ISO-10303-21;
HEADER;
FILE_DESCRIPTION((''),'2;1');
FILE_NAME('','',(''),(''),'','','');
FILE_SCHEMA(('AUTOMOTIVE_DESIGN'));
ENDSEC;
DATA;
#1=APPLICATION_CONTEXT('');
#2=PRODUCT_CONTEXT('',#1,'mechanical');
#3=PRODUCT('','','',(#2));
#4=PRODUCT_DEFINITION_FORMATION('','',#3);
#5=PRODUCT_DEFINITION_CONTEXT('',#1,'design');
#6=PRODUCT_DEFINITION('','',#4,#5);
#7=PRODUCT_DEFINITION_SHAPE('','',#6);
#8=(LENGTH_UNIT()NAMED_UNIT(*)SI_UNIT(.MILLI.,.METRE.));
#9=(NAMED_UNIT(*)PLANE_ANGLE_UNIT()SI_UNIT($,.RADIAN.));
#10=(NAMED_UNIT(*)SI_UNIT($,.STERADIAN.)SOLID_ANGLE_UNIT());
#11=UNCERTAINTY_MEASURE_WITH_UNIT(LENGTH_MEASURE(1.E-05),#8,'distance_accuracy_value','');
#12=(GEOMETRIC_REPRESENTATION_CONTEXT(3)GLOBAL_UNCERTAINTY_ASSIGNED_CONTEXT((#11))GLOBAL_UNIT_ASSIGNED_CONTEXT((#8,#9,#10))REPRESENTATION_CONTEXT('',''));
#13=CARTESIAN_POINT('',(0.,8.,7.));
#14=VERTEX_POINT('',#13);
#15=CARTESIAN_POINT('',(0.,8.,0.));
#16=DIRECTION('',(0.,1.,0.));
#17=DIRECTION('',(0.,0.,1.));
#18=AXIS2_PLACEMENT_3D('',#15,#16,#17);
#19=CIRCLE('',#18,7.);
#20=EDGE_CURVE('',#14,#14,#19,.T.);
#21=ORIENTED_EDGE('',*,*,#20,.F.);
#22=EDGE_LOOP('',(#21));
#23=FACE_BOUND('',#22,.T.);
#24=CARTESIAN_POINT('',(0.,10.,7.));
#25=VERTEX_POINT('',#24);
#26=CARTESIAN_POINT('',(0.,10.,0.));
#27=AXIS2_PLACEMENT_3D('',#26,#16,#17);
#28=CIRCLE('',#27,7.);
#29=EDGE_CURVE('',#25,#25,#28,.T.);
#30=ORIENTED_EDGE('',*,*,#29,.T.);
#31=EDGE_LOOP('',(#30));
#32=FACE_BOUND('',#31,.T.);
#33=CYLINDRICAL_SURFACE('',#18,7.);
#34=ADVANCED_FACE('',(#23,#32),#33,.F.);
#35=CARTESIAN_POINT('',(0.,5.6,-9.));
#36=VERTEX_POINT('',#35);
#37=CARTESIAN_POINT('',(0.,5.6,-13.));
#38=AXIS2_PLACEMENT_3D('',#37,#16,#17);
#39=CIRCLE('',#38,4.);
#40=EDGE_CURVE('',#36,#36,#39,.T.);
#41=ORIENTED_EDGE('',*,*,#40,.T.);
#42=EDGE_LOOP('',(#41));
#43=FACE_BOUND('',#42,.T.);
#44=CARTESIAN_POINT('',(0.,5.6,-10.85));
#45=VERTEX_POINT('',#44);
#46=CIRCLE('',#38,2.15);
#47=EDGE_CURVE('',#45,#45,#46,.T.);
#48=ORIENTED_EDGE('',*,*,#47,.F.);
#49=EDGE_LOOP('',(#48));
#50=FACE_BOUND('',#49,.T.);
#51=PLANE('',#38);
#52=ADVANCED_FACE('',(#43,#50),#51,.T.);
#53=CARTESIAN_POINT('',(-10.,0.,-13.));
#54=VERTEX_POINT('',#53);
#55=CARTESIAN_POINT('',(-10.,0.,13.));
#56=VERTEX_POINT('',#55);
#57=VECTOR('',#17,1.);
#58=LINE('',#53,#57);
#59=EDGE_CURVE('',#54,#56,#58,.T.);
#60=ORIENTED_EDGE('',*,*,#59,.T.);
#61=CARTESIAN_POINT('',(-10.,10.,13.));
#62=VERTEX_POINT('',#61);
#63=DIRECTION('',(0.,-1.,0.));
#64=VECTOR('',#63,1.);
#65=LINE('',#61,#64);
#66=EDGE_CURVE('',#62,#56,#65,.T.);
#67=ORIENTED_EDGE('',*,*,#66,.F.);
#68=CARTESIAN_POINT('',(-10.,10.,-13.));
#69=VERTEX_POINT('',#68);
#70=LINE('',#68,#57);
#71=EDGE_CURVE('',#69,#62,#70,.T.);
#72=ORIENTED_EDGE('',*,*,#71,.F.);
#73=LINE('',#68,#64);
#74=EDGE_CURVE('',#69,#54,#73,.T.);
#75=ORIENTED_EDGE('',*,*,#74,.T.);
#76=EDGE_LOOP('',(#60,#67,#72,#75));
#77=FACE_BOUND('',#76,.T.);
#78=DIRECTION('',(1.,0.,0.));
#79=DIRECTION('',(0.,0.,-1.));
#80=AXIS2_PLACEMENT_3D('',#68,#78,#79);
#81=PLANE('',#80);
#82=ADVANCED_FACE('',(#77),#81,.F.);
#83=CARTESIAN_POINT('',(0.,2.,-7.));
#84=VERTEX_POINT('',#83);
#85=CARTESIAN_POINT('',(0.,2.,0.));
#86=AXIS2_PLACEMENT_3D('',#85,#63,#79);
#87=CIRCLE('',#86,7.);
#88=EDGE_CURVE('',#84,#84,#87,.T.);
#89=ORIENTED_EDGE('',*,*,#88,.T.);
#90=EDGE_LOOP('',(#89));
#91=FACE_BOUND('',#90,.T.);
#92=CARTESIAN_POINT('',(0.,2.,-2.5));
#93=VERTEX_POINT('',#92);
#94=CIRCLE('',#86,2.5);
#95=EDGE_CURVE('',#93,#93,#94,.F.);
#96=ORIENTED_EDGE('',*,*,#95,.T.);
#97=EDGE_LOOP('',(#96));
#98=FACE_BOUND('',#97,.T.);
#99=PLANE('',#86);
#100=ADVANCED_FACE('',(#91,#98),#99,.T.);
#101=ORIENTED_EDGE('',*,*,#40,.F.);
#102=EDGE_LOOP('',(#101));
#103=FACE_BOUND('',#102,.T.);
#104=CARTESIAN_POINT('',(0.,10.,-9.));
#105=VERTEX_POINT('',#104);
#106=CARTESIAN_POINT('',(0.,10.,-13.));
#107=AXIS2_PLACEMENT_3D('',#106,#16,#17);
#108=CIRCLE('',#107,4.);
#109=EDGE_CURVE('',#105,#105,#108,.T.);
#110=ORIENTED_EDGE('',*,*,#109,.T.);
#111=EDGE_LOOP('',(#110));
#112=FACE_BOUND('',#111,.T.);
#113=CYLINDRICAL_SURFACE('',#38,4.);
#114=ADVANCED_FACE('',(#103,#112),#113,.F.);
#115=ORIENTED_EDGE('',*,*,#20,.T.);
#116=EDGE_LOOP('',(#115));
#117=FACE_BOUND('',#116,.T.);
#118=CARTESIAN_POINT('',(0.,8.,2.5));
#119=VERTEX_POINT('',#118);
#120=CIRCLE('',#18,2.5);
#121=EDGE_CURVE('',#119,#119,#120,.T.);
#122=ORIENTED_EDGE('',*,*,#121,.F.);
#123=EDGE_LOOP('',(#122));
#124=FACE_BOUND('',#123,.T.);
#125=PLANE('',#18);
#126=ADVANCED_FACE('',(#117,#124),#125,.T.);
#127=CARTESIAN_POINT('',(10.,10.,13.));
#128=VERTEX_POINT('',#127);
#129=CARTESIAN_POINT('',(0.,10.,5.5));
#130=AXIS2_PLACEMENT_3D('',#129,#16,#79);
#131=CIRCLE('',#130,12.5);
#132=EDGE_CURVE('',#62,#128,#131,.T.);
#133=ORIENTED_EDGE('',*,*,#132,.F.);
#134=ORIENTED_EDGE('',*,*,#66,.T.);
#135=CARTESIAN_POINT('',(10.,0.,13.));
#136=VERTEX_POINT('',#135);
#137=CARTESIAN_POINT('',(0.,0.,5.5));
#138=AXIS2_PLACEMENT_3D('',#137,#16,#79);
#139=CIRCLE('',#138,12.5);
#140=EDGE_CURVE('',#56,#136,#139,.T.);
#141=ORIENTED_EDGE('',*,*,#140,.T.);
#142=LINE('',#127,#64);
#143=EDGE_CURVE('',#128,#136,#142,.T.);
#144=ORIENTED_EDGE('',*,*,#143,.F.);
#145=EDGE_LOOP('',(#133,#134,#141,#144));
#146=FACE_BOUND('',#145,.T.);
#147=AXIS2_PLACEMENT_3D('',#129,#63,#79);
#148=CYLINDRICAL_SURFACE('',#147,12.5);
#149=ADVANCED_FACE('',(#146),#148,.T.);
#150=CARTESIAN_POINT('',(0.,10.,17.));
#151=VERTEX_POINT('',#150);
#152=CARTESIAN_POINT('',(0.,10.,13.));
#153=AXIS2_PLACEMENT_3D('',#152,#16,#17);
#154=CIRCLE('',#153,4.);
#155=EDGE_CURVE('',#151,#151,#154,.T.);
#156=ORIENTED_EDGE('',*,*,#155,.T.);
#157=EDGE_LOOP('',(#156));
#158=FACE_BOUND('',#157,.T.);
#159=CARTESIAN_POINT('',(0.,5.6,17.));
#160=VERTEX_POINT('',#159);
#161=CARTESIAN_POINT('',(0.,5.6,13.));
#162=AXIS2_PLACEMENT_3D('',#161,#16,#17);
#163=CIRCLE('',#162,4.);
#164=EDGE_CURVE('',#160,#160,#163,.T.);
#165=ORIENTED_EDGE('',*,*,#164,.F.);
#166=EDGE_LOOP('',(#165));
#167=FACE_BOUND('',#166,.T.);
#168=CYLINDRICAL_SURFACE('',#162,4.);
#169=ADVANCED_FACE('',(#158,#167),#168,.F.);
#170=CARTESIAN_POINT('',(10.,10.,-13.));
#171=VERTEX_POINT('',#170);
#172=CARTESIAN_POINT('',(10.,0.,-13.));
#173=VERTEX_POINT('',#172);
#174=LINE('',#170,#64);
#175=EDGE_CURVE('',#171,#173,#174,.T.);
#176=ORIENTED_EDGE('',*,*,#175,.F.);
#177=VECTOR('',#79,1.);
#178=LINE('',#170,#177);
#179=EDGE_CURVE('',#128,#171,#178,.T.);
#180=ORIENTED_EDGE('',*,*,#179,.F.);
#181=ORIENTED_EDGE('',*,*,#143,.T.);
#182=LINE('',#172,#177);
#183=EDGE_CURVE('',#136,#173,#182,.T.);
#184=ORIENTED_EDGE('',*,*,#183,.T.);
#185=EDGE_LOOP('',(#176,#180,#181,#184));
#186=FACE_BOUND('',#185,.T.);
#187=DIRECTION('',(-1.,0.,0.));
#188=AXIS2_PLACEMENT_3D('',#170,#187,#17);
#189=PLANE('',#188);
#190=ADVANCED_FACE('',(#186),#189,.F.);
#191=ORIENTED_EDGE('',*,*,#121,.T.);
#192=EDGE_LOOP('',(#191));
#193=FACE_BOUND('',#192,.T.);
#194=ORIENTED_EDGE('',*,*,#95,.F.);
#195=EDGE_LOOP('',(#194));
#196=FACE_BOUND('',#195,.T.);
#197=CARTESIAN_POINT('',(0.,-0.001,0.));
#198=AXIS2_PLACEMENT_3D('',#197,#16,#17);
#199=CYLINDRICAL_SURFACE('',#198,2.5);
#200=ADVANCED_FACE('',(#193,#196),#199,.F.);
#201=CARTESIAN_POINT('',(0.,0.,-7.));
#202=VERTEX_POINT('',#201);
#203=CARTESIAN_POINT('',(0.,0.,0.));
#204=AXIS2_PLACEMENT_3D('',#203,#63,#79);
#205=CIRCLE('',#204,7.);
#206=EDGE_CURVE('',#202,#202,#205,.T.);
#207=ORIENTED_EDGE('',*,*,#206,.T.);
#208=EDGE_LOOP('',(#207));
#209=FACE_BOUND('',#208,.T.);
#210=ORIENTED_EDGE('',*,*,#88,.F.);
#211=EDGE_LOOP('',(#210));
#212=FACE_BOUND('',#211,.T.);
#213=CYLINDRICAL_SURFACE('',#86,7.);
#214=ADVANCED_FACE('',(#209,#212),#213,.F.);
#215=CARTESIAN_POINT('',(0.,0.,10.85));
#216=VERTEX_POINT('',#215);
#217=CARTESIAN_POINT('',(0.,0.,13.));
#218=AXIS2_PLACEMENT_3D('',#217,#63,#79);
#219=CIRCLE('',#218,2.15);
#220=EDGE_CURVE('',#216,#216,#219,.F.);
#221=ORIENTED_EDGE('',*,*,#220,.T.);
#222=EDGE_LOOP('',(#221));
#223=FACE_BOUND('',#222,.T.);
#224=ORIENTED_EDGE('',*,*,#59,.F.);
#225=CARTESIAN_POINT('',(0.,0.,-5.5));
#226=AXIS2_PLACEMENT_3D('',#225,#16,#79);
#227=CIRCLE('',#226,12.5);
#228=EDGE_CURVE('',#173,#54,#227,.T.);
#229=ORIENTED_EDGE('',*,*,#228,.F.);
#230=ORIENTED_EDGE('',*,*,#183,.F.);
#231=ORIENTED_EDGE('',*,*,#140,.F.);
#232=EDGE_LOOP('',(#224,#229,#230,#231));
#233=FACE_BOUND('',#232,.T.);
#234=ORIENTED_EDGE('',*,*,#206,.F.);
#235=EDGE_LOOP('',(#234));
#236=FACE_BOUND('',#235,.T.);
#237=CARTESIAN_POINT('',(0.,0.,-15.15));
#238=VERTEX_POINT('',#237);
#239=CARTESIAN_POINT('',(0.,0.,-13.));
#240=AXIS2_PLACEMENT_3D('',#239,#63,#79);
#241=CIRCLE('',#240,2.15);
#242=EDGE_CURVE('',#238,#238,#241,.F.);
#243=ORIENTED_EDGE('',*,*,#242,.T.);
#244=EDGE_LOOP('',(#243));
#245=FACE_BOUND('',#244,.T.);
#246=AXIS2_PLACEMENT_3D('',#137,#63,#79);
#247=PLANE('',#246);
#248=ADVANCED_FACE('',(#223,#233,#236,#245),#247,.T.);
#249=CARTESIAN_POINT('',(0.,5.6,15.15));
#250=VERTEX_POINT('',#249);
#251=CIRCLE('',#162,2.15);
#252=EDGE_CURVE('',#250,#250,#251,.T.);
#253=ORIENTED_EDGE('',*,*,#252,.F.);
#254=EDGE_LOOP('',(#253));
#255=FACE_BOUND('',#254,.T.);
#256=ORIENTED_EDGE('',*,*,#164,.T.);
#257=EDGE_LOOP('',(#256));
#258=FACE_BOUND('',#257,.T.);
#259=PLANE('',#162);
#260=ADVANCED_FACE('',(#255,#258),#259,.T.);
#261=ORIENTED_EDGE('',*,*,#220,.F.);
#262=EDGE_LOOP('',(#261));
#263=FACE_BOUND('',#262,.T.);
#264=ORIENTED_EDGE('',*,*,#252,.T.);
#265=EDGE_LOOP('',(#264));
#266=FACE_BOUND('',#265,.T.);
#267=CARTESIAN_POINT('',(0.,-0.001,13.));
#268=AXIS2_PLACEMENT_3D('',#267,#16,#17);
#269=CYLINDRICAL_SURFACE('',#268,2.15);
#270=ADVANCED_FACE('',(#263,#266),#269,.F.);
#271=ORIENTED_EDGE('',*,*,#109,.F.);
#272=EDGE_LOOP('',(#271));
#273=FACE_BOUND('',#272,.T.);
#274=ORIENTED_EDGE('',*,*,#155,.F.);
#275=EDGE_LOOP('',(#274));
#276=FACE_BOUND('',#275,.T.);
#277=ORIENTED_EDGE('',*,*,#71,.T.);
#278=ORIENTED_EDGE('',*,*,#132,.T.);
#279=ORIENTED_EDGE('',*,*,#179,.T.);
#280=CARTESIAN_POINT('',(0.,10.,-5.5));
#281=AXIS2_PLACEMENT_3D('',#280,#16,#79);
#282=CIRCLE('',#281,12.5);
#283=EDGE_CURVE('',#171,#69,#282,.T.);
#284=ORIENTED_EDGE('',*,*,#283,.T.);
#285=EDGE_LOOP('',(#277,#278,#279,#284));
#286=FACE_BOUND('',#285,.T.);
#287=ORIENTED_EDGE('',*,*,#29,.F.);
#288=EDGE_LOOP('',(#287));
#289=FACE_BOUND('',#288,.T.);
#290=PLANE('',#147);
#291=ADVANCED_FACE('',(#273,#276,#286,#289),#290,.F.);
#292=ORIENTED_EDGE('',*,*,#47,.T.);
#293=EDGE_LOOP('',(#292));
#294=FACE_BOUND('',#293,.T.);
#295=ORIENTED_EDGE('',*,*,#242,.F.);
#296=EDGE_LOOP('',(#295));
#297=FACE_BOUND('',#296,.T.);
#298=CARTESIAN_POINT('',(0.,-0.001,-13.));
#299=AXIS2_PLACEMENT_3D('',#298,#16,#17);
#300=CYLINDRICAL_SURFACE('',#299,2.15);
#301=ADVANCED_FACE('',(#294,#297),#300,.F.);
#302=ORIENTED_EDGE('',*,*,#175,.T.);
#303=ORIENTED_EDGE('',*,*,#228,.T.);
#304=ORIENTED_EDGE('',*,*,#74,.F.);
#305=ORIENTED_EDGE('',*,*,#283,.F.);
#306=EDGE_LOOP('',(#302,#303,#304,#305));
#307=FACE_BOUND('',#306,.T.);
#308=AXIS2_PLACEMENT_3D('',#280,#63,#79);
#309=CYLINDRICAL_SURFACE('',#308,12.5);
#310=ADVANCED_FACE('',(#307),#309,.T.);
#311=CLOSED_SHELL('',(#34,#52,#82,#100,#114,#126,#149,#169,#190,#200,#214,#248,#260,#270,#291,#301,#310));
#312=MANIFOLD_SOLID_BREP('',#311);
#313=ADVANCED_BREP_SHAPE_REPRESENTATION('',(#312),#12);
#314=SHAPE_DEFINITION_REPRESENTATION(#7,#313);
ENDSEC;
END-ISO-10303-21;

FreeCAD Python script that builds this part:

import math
import FreeCAD as App
import Part
import Sketcher

V = App.Vector
Q = App.Units.Quantity

doc = App.newDocument("Part")
body = doc.addObject("PartDesign::Body", "Body")

sketch1 = body.newObject("Sketcher::SketchObject", "Sketch")
sketch1.AttachmentSupport = (doc.getObject("XZ_Plane"), [""])
sketch1.MapMode = "FlatFace"
sketch1.addGeometry([
    Part.LineSegment(V(-10, -13, 0), V(-10, 13, 0)),
    Part.ArcOfCircle(Part.Circle(V(0, 6, 0), V(0, 0, 1), 12), math.radians(37), math.radians(143)),
    Part.LineSegment(V(10, 13, 0), V(10, -13, 0)),
    Part.ArcOfCircle(Part.Circle(V(0, -6, 0), V(0, 0, 1), 12), math.radians(-143), math.radians(-37)),
], False)
sketch1.addConstraint([
    Sketcher.Constraint("Coincident", 0, 2, 1, 2),
    Sketcher.Constraint("Coincident", 1, 1, 2, 1),
    Sketcher.Constraint("Coincident", 2, 2, 3, 2),
    Sketcher.Constraint("Coincident", 3, 1, 0, 1),
    Sketcher.Constraint("Vertical", 0),
    Sketcher.Constraint("Vertical", 2),
    Sketcher.Constraint("Equal", 1, 3),
    Sketcher.Constraint("Symmetric", 1, 3, 3, 3, -1, 1),
    Sketcher.Constraint("Symmetric", 0, 2, 1, 1, -2),
    Sketcher.Constraint("Radius", 1, Q("12.5 mm")),
    Sketcher.Constraint("DistanceY", 0, 1, 0, 2, Q("26 mm")),
    Sketcher.Constraint("DistanceX", 0, 2, -1, 1, Q("10 mm")),
])
pad1 = body.newObject("PartDesign::Pad", "Pad")
pad1.Profile = sketch1
pad1.Length = 10
pad1.Reversed = True

sketch2 = body.newObject("Sketcher::SketchObject", "Sketch001")
sketch2.AttachmentSupport = (doc.getObject("XZ_Plane"), [""])
sketch2.MapMode = "FlatFace"
sketch2.AttachmentOffset = App.Placement(V(0, 0, -10), App.Rotation())
sketch2.addGeometry([
    Part.Circle(V(0, -13, 0), V(0, 0, 1), 4),
    Part.Circle(V(0, 13, 0), V(0, 0, 1), 4),
], False)
sketch2.addConstraint([
    Sketcher.Constraint("Equal", 0, 1),
    Sketcher.Constraint("Symmetric", 0, 3, 1, 3, -1, 1),
    Sketcher.Constraint("PointOnObject", 0, 3, -2),
    Sketcher.Constraint("Diameter", 0, Q("8 mm")),
    Sketcher.Constraint("DistanceY", 0, 3, -1, 1, Q("13 mm")),
])
pocket1 = body.newObject("PartDesign::Pocket", "Pocket")
pocket1.Profile = sketch2
pocket1.Length = 4.4
pocket1.Reversed = True

sketch3 = body.newObject("Sketcher::SketchObject", "Sketch002")
sketch3.AttachmentSupport = (doc.getObject("XZ_Plane"), [""])
sketch3.MapMode = "FlatFace"
sketch3.AttachmentOffset = App.Placement(V(0, 0, -5.6), App.Rotation())
sketch3.addGeometry(Part.Circle(V(0, -13, 0), V(0, 0, 1), 2.1), False)
sketch3.addConstraint([
    Sketcher.Constraint("PointOnObject", 0, 3, -2),
    Sketcher.Constraint("Diameter", 0, Q("4.3 mm")),
    Sketcher.Constraint("DistanceY", 0, 3, -1, 1, Q("13 mm")),
])
pocket2 = body.newObject("PartDesign::Pocket", "Pocket001")
pocket2.Profile = sketch3
pocket2.Type = "UpToFirst"
pocket2.Reversed = True

sketch4 = body.newObject("Sketcher::SketchObject", "Sketch003")
sketch4.AttachmentSupport = (doc.getObject("XZ_Plane"), [""])
sketch4.MapMode = "FlatFace"
sketch4.AttachmentOffset = App.Placement(V(0, 0, -5.6), App.Rotation())
sketch4.addGeometry(Part.Circle(V(0, 13, 0), V(0, 0, 1), 2.1), False)
sketch4.addConstraint([
    Sketcher.Constraint("PointOnObject", 0, 3, -2),
    Sketcher.Constraint("Diameter", 0, Q("4.3 mm")),
    Sketcher.Constraint("DistanceY", -1, 1, 0, 3, Q("13 mm")),
])
pocket3 = body.newObject("PartDesign::Pocket", "Pocket002")
pocket3.Profile = sketch4
pocket3.Type = "UpToFirst"
pocket3.Reversed = True

sketch5 = body.newObject("Sketcher::SketchObject", "Sketch004")
sketch5.AttachmentSupport = (doc.getObject("XZ_Plane"), [""])
sketch5.MapMode = "FlatFace"
sketch5.AttachmentOffset = App.Placement(V(0, 0, -10), App.Rotation())
sketch5.addGeometry(Part.Circle(V(0, 0, 0), V(0, 0, 1), 7), False)
sketch5.addConstraint([
    Sketcher.Constraint("Coincident", 0, 3, -1, 1),
    Sketcher.Constraint("Diameter", 0, Q("14 mm")),
])
pocket4 = body.newObject("PartDesign::Pocket", "Pocket003")
pocket4.Profile = sketch5
pocket4.Length = 2
pocket4.Reversed = True

sketch6 = body.newObject("Sketcher::SketchObject", "Sketch005")
sketch6.AttachmentSupport = (doc.getObject("XZ_Plane"), [""])
sketch6.MapMode = "FlatFace"
sketch6.AttachmentOffset = App.Placement(V(0, 0, -8), App.Rotation())
sketch6.addGeometry(Part.Circle(V(0, 0, 0), V(0, 0, 1), 2.5), False)
sketch6.addConstraint([
    Sketcher.Constraint("Coincident", 0, 3, -1, 1),
    Sketcher.Constraint("Diameter", 0, Q("5 mm")),
])
pocket5 = body.newObject("PartDesign::Pocket", "Pocket004")
pocket5.Profile = sketch6
pocket5.Type = "UpToFirst"
pocket5.Reversed = True

sketch7 = body.newObject("Sketcher::SketchObject", "Sketch006")
sketch7.AttachmentSupport = (doc.getObject("XZ_Plane"), [""])
sketch7.MapMode = "FlatFace"
sketch7.AttachmentOffset = App.Placement(V(0, 0, -2), App.Rotation())
sketch7.addGeometry(Part.Circle(V(0, 0, 0), V(0, 0, 1), 7), False)
sketch7.addConstraint([
    Sketcher.Constraint("Coincident", 0, 3, -1, 1),
    Sketcher.Constraint("Diameter", 0, Q("14 mm")),
])
pocket6 = body.newObject("PartDesign::Pocket", "Pocket005")
pocket6.Profile = sketch7
pocket6.Length = 2
pocket6.Reversed = True

doc.recompute()
